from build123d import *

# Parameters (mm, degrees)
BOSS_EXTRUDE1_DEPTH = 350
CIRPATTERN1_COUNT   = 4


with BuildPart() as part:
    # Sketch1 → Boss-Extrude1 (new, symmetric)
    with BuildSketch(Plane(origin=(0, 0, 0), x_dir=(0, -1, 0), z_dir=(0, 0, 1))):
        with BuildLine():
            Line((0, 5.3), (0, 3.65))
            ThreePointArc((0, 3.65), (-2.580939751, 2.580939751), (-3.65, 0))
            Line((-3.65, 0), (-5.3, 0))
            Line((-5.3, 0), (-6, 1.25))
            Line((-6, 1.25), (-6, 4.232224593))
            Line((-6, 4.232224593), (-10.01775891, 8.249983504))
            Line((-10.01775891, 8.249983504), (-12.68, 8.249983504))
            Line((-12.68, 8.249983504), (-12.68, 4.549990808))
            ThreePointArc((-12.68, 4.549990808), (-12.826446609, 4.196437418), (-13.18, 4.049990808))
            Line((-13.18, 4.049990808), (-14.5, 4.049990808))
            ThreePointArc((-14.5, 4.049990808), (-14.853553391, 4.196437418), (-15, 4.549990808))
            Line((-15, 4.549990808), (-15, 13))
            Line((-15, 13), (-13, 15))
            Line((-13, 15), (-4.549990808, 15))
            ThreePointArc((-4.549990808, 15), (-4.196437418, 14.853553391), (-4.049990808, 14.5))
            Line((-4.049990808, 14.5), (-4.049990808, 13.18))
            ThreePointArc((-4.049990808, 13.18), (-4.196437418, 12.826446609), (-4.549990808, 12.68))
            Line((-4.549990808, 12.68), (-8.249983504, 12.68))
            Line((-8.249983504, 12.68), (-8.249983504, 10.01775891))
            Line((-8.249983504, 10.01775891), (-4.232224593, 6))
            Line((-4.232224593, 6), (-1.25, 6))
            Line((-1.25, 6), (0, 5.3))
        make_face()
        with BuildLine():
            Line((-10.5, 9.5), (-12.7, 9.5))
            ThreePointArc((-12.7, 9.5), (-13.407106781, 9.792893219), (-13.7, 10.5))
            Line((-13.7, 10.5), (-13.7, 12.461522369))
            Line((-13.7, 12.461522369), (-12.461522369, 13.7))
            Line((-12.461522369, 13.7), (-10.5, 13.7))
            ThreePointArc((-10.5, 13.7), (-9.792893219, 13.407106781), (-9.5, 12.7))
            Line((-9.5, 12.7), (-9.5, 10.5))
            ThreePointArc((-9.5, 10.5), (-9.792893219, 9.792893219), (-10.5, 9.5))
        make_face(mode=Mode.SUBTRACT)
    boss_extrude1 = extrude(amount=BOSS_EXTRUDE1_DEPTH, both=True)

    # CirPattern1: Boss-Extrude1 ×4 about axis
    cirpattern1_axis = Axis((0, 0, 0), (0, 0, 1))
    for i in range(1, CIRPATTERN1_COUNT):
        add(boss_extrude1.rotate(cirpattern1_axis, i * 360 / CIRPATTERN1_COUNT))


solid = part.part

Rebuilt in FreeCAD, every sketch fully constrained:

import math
import FreeCAD as App
import Part
import Sketcher
Q = App.Units.Quantity

doc = App.newDocument("Part")
body = doc.addObject("PartDesign::Body", "Body")

# Sketch on XY plane
sketch1 = body.newObject("Sketcher::SketchObject", "Sketch")
sketch1.AttachmentSupport = (doc.getObject("XY_Plane"), [""])
sketch1.MapMode = "FlatFace"
sketch1.addGeometry(Part.LineSegment(App.Vector(3.6, 0, 0), App.Vector(5.3, 0, 0)), False)
sketch1.addGeometry(Part.LineSegment(App.Vector(5.3, 0, 0), App.Vector(6, 1.2, 0)), False)
sketch1.addGeometry(Part.LineSegment(App.Vector(6, 1.2, 0), App.Vector(6, 4.2, 0)), False)
sketch1.addGeometry(Part.LineSegment(App.Vector(6, 4.2, 0), App.Vector(10, 8.2, 0)), False)
sketch1.addGeometry(Part.LineSegment(App.Vector(10, 8.2, 0), App.Vector(12.7, 8.2, 0)), False)
sketch1.addGeometry(Part.LineSegment(App.Vector(12.7, 8.2, 0), App.Vector(12.7, 4.5, 0)), False)
sketch1.addGeometry(Part.ArcOfCircle(Part.Circle(App.Vector(13.2, 4.5, 0), App.Vector(0, 0, 1), 0.5), math.radians(180), math.radians(270)), False)
sketch1.addGeometry(Part.LineSegment(App.Vector(13.2, 4, 0), App.Vector(14.5, 4, 0)), False)
sketch1.addGeometry(Part.ArcOfCircle(Part.Circle(App.Vector(14.5, 4.5, 0), App.Vector(0, 0, 1), 0.5), math.radians(-90), math.radians(0)), False)
sketch1.addGeometry(Part.LineSegment(App.Vector(15, 4.5, 0), App.Vector(15, 13, 0)), False)
sketch1.addGeometry(Part.LineSegment(App.Vector(15, 13, 0), App.Vector(13, 15, 0)), False)
sketch1.addGeometry(Part.LineSegment(App.Vector(13, 15, 0), App.Vector(4.5, 15, 0)), False)
sketch1.addGeometry(Part.ArcOfCircle(Part.Circle(App.Vector(4.5, 14.5, 0), App.Vector(0, 0, 1), 0.5), math.radians(90), math.radians(180)), False)
sketch1.addGeometry(Part.LineSegment(App.Vector(4, 14.5, 0), App.Vector(4, 13.2, 0)), False)
sketch1.addGeometry(Part.ArcOfCircle(Part.Circle(App.Vector(4.5, 13.2, 0), App.Vector(0, 0, 1), 0.5), math.radians(180), math.radians(270)), False)
sketch1.addGeometry(Part.LineSegment(App.Vector(4.5, 12.7, 0), App.Vector(8.2, 12.7, 0)), False)
sketch1.addGeometry(Part.LineSegment(App.Vector(8.2, 12.7, 0), App.Vector(8.2, 10, 0)), False)
sketch1.addGeometry(Part.LineSegment(App.Vector(8.2, 10, 0), App.Vector(4.2, 6, 0)), False)
sketch1.addGeometry(Part.LineSegment(App.Vector(4.2, 6, 0), App.Vector(1.2, 6, 0)), False)
sketch1.addGeometry(Part.LineSegment(App.Vector(1.2, 6, 0), App.Vector(0, 5.3, 0)), False)
sketch1.addGeometry(Part.LineSegment(App.Vector(0, 5.3, 0), App.Vector(0, 3.6, 0)), False)
sketch1.addGeometry(Part.ArcOfCircle(Part.Circle(App.Vector(0, 0, 0), App.Vector(0, 0, 1), 3.7), math.radians(0), math.radians(90)), False)
sketch1.addGeometry(Part.LineSegment(App.Vector(9.5, 10.5, 0), App.Vector(9.5, 12.7, 0)), False)
sketch1.addGeometry(Part.ArcOfCircle(Part.Circle(App.Vector(10.5, 12.7, 0), App.Vector(0, 0, 1), 1), math.radians(90), math.radians(180)), False)
sketch1.addGeometry(Part.LineSegment(App.Vector(10.5, 13.7, 0), App.Vector(12.5, 13.7, 0)), False)
sketch1.addGeometry(Part.LineSegment(App.Vector(12.5, 13.7, 0), App.Vector(13.7, 12.5, 0)), False)
sketch1.addGeometry(Part.LineSegment(App.Vector(13.7, 12.5, 0), App.Vector(13.7, 10.5, 0)), False)
sketch1.addGeometry(Part.ArcOfCircle(Part.Circle(App.Vector(12.7, 10.5, 0), App.Vector(0, 0, 1), 1), math.radians(-90), math.radians(0)), False)
sketch1.addGeometry(Part.LineSegment(App.Vector(12.7, 9.5, 0), App.Vector(10.5, 9.5, 0)), False)
sketch1.addGeometry(Part.ArcOfCircle(Part.Circle(App.Vector(10.5, 10.5, 0), App.Vector(0, 0, 1), 1), math.radians(-180), math.radians(-90)), False)
sketch1.addConstraint(Sketcher.Constraint("Coincident", 0, 2, 1, 1))
sketch1.addConstraint(Sketcher.Constraint("Coincident", 1, 2, 2, 1))
sketch1.addConstraint(Sketcher.Constraint("Coincident", 2, 2, 3, 1))
sketch1.addConstraint(Sketcher.Constraint("Coincident", 3, 2, 4, 1))
sketch1.addConstraint(Sketcher.Constraint("Coincident", 4, 2, 5, 1))
sketch1.addConstraint(Sketcher.Constraint("Tangent", 5, 2, 6, 1))
sketch1.addConstraint(Sketcher.Constraint("Tangent", 6, 2, 7, 1))
sketch1.addConstraint(Sketcher.Constraint("Tangent", 7, 2, 8, 1))
sketch1.addConstraint(Sketcher.Constraint("Tangent", 8, 2, 9, 1))
sketch1.addConstraint(Sketcher.Constraint("Coincident", 9, 2, 10, 1))
sketch1.addConstraint(Sketcher.Constraint("Coincident", 10, 2, 11, 1))
sketch1.addConstraint(Sketcher.Constraint("Tangent", 11, 2, 12, 1))
sketch1.addConstraint(Sketcher.Constraint("Tangent", 12, 2, 13, 1))
sketch1.addConstraint(Sketcher.Constraint("Tangent", 13, 2, 14, 1))
sketch1.addConstraint(Sketcher.Constraint("Tangent", 14, 2, 15, 1))
sketch1.addConstraint(Sketcher.Constraint("Coincident", 15, 2, 16, 1))
sketch1.addConstraint(Sketcher.Constraint("Coincident", 16, 2, 17, 1))
sketch1.addConstraint(Sketcher.Constraint("Coincident", 17, 2, 18, 1))
sketch1.addConstraint(Sketcher.Constraint("Coincident", 18, 2, 19, 1))
sketch1.addConstraint(Sketcher.Constraint("Coincident", 19, 2, 20, 1))
sketch1.addConstraint(Sketcher.Constraint("Coincident", 20, 2, 21, 2))
sketch1.addConstraint(Sketcher.Constraint("Coincident", 21, 1, 0, 1))
sketch1.addConstraint(Sketcher.Constraint("Tangent", 22, 2, 23, 2))
sketch1.addConstraint(Sketcher.Constraint("Tangent", 23, 1, 24, 1))
sketch1.addConstraint(Sketcher.Constraint("Coincident", 24, 2, 25, 1))
sketch1.addConstraint(Sketcher.Constraint("Coincident", 25, 2, 26, 1))
sketch1.addConstraint(Sketcher.Constraint("Tangent", 26, 2, 27, 2))
sketch1.addConstraint(Sketcher.Constraint("Tangent", 27, 1, 28, 1))
sketch1.addConstraint(Sketcher.Constraint("Tangent", 28, 2, 29, 2))
sketch1.addConstraint(Sketcher.Constraint("Tangent", 29, 1, 22, 1))
sketch1.addConstraint(Sketcher.Constraint("Horizontal", 0))
sketch1.addConstraint(Sketcher.Constraint("Vertical", 2))
sketch1.addConstraint(Sketcher.Constraint("Horizontal", 4))
sketch1.addConstraint(Sketcher.Constraint("Vertical", 5))
sketch1.addConstraint(Sketcher.Constraint("Horizontal", 7))
sketch1.addConstraint(Sketcher.Constraint("Vertical", 9))
sketch1.addConstraint(Sketcher.Constraint("Horizontal", 11))
sketch1.addConstraint(Sketcher.Constraint("Vertical", 13))
sketch1.addConstraint(Sketcher.Constraint("Horizontal", 15))
sketch1.addConstraint(Sketcher.Constraint("Vertical", 16))
sketch1.addConstraint(Sketcher.Constraint("Horizontal", 18))
sketch1.addConstraint(Sketcher.Constraint("Vertical", 20))
sketch1.addConstraint(Sketcher.Constraint("Vertical", 22))
sketch1.addConstraint(Sketcher.Constraint("Horizontal", 24))
sketch1.addConstraint(Sketcher.Constraint("Vertical", 26))
sketch1.addConstraint(Sketcher.Constraint("Horizontal", 28))
sketch1.addConstraint(Sketcher.Constraint("Coincident", 21, 3, -1, 1))
sketch1.addConstraint(Sketcher.Constraint("Equal", 6, 8))
sketch1.addConstraint(Sketcher.Constraint("Equal", 8, 12))
sketch1.addConstraint(Sketcher.Constraint("Equal", 12, 14))
sketch1.addConstraint(Sketcher.Constraint("Equal", 23, 27))
sketch1.addConstraint(Sketcher.Constraint("Equal", 27, 29))
sketch1.addConstraint(Sketcher.Constraint("PointOnObject", 0, 2, -1))
sketch1.addConstraint(Sketcher.Constraint("PointOnObject", 19, 2, -2))
sketch1.addConstraint(Sketcher.Constraint("Perpendicular", 3, 10))
sketch1.addConstraint(Sketcher.Constraint("Perpendicular", 10, 17))
sketch1.addConstraint(Sketcher.Constraint("Perpendicular", 17, 25))
sketch1.addConstraint(Sketcher.Constraint("Equal", 18, 2))
sketch1.addConstraint(Sketcher.Constraint("Equal", 15, 5))
sketch1.addConstraint(Sketcher.Constraint("Equal", 11, 9))
sketch1.addConstraint(Sketcher.Constraint("Equal", 7, 13))
sketch1.addConstraint(Sketcher.Constraint("Equal", 4, 16))
sketch1.addConstraint(Sketcher.Constraint("Equal", 0, 20))
sketch1.addConstraint(Sketcher.Constraint("Equal", 28, 22))
sketch1.addConstraint(Sketcher.Constraint("Equal", 24, 26))
sketch1.addConstraint(Sketcher.Constraint("Equal", 3, 17))
sketch1.addConstraint(Sketcher.Constraint("Equal", 1, 19))
sketch1.addConstraint(Sketcher.Constraint("Radius", 23, Q("1 mm")))
sketch1.addConstraint(Sketcher.Constraint("Radius", 6, Q("0.5 mm")))
sketch1.addConstraint(Sketcher.Constraint("Radius", 21, Q("3.65 mm")))
sketch1.addConstraint(Sketcher.Constraint("DistanceX", 28, 2, 28, 1, Q("2.2 mm")))
sketch1.addConstraint(Sketcher.Constraint("DistanceX", -1, 1, 1, 2, Q("6 mm")))
sketch1.addConstraint(Sketcher.Constraint("DistanceX", -1, 1, 8, 2, Q("15 mm")))
sketch1.addConstraint(Sketcher.Constraint("DistanceY", -1, 1, 9, 2, Q("13 mm")))
sketch1.addConstraint(Sketcher.Constraint("DistanceX", 23, 3, 8, 3, Q("4 mm")))
sketch1.addConstraint(Sketcher.Constraint("DistanceY", 27, 3, 12, 3, Q("4 mm")))
sketch1.addConstraint(Sketcher.Constraint("DistanceX", 0, 1, 0, 2, Q("1.65 mm")))
sketch1.addConstraint(Sketcher.Constraint("DistanceX", 7, 1, 7, 2, Q("1.32 mm")))
sketch1.addConstraint(Sketcher.Constraint("DistanceY", -1, 1, 1, 2, Q("1.25 mm")))
sketch1.addConstraint(Sketcher.Constraint("DistanceX", 4, 1, 4, 2, Q("2.662241 mm")))
sketch1.addConstraint(Sketcher.Constraint("DistanceX", 11, 2, 11, 1, Q("8.450009 mm")))
sketch1.addConstraint(Sketcher.Constraint("Distance", 25, Q("1.751472 mm")))
sketch1.addConstraint(Sketcher.Constraint("DistanceX", 15, 1, 15, 2, Q("3.699993 mm")))
pad1 = body.newObject("PartDesign::Pad", "Pad")
pad1.Profile = sketch1
pad1.Length = 700
pad1.Midplane = True
doc.recompute()

polarpattern = body.newObject("PartDesign::PolarPattern", "PolarPattern")
polarpattern.Originals = [pad1]
polarpattern.Axis = (doc.getObject("Z_Axis"), [""])
polarpattern.Angle = 360
polarpattern.Occurrences = 4
body.Tip = polarpattern

doc.recompute()
